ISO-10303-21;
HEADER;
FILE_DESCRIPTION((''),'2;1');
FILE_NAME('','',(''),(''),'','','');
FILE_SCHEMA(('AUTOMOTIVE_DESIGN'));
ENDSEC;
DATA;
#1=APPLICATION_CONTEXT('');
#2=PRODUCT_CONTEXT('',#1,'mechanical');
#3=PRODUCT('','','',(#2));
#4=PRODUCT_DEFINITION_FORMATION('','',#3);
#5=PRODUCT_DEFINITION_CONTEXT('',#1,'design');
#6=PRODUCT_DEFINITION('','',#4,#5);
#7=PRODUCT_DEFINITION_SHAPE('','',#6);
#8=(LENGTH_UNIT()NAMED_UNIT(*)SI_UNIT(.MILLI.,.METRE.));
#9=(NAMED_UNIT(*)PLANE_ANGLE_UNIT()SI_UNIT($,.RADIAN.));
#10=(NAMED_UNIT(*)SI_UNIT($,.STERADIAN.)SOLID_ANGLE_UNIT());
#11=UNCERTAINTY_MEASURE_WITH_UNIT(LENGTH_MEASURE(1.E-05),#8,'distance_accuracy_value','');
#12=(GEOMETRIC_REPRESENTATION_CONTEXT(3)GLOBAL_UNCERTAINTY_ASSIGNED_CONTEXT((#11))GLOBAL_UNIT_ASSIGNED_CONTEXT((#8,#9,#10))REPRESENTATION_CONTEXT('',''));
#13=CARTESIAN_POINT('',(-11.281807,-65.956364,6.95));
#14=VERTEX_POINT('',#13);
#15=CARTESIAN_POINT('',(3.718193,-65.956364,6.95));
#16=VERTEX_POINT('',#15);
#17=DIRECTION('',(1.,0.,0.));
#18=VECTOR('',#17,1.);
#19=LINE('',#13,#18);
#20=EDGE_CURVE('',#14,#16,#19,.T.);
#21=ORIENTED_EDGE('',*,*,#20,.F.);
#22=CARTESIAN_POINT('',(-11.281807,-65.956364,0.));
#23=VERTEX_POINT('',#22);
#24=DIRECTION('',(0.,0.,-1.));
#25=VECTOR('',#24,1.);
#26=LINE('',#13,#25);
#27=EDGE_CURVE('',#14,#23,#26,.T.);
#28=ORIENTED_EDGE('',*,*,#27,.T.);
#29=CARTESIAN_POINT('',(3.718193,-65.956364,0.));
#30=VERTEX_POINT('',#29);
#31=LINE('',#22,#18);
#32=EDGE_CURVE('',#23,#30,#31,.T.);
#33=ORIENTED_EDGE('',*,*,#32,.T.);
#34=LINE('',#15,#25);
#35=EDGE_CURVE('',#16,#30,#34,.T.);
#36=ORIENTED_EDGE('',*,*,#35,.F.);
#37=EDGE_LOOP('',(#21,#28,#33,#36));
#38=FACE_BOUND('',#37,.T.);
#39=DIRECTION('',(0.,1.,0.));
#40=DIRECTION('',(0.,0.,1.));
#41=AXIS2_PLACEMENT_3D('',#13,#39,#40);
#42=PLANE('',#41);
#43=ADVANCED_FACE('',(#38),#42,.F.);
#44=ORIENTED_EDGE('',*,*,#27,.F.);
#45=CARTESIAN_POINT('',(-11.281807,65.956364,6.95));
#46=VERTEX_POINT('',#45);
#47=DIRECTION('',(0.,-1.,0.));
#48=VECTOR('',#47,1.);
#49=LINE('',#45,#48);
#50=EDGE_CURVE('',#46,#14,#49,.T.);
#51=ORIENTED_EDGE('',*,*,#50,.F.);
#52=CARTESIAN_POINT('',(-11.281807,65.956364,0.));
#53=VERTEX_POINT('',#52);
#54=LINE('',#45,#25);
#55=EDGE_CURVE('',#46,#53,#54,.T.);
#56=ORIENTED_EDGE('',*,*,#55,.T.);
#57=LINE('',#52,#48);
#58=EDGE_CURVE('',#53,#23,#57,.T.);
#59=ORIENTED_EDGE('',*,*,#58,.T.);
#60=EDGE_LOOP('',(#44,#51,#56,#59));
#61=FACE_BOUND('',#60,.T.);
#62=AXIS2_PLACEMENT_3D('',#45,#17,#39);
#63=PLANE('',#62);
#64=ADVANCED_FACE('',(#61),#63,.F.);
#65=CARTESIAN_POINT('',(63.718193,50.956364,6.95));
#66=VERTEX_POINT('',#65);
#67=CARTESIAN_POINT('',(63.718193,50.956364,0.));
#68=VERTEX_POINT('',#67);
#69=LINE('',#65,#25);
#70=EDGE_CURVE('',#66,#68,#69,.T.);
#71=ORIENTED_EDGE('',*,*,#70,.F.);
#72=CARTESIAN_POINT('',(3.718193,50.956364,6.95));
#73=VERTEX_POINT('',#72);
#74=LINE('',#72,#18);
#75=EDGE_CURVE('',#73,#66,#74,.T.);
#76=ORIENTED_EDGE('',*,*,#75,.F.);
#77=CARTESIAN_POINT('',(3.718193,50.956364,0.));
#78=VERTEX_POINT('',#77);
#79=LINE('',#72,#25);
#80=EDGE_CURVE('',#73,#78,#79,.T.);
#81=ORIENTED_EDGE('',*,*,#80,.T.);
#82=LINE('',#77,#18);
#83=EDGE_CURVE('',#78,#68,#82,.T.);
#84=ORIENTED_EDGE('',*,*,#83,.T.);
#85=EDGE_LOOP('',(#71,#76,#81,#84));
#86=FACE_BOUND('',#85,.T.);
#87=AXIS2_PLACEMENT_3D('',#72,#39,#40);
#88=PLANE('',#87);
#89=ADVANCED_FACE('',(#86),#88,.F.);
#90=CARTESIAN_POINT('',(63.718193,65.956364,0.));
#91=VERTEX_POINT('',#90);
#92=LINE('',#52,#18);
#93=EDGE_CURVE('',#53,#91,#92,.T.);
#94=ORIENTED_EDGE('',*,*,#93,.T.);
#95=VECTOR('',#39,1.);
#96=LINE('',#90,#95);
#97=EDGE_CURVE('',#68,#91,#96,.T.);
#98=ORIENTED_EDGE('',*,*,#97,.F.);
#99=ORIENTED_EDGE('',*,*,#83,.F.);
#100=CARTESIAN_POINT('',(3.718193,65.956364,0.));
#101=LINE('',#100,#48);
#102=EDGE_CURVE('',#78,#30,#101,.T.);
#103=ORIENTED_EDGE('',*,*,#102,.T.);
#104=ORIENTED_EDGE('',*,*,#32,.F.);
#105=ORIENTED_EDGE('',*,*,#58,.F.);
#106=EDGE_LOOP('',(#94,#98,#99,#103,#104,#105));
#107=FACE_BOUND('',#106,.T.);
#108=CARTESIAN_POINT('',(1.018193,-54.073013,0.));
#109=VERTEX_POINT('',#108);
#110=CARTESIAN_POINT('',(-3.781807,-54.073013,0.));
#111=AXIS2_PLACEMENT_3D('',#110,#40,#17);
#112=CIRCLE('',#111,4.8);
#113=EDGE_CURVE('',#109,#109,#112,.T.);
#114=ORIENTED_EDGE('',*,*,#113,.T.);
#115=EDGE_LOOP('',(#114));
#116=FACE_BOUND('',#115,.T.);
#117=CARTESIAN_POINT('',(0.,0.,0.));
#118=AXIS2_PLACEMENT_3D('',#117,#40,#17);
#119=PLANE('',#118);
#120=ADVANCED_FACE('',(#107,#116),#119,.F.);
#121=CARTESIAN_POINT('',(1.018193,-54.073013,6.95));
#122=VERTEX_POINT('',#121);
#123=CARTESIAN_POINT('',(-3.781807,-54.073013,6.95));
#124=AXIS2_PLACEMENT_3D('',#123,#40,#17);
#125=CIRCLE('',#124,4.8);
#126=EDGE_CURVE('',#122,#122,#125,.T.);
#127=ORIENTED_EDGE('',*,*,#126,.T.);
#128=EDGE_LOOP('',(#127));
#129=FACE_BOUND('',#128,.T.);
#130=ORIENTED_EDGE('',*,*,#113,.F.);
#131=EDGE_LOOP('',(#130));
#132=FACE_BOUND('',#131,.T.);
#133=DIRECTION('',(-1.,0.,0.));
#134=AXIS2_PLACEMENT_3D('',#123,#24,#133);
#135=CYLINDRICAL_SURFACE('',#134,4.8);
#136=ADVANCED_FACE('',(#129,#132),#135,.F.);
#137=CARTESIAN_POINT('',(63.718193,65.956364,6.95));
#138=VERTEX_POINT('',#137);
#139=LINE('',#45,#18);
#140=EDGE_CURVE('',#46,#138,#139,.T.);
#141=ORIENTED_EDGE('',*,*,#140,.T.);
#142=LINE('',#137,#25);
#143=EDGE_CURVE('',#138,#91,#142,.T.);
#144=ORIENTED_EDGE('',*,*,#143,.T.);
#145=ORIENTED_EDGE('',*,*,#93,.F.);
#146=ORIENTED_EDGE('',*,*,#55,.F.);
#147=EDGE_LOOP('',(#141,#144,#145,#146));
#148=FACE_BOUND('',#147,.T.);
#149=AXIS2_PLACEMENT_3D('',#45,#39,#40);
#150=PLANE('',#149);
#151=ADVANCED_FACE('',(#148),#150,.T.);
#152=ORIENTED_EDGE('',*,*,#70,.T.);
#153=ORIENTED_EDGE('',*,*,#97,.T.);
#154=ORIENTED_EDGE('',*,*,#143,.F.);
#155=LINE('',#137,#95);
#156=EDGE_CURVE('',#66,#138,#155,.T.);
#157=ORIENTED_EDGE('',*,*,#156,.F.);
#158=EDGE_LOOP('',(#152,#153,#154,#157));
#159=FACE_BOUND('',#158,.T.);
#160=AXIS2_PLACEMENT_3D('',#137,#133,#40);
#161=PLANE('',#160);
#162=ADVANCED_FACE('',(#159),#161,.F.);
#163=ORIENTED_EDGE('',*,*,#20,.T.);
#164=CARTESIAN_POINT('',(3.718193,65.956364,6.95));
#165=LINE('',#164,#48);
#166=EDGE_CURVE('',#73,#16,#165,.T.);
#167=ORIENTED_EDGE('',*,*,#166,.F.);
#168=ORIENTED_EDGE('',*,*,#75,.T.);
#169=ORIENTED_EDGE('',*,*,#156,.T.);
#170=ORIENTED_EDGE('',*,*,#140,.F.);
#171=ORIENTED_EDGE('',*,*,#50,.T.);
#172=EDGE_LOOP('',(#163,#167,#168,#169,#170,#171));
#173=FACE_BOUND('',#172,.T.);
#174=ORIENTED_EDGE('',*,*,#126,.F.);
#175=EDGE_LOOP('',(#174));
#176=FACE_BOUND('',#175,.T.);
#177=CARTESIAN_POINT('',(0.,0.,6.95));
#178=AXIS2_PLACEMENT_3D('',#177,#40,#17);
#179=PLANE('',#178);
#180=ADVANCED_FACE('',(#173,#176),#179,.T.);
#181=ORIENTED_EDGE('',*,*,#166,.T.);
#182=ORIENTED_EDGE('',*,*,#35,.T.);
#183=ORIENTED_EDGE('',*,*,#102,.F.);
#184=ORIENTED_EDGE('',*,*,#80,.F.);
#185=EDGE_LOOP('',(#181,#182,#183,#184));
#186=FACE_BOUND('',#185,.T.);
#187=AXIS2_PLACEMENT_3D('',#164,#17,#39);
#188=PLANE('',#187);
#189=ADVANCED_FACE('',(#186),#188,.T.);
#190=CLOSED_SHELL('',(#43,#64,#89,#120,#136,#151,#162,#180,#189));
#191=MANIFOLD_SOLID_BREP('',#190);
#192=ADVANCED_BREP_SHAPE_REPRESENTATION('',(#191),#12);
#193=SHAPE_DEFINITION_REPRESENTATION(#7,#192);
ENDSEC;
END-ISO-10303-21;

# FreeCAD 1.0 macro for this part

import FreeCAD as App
import Part
import Sketcher
Q = App.Units.Quantity

doc = App.newDocument("Part")
body = doc.addObject("PartDesign::Body", "Body")

# Sketch on XY plane
sketch1 = doc.addObject("Sketcher::SketchObject", "Sketch")
body.addObject(sketch1)
sketch1.AttachmentSupport = (doc.XY_Plane, [""])
sketch1.MapMode = "FlatFace"
sketch1.addGeometry(Part.LineSegment(App.Vector(-11, 66, 0), App.Vector(-11, -66, 0)), False)
sketch1.addGeometry(Part.LineSegment(App.Vector(-11, -66, 0), App.Vector(4, -66, 0)), False)
sketch1.addGeometry(Part.LineSegment(App.Vector(4, -66, 0), App.Vector(4, 66, 0)), False)
sketch1.addGeometry(Part.LineSegment(App.Vector(4, 66, 0), App.Vector(-11, 66, 0)), False)
sketch1.addConstraint(Sketcher.Constraint("Coincident", 0, 2, 1, 1))
sketch1.addConstraint(Sketcher.Constraint("Coincident", 1, 2, 2, 1))
sketch1.addConstraint(Sketcher.Constraint("Coincident", 2, 2, 3, 1))
sketch1.addConstraint(Sketcher.Constraint("Coincident", 3, 2, 0, 1))
sketch1.addConstraint(Sketcher.Constraint("Vertical", 0))
sketch1.addConstraint(Sketcher.Constraint("Horizontal", 1))
sketch1.addConstraint(Sketcher.Constraint("Vertical", 2))
sketch1.addConstraint(Sketcher.Constraint("Horizontal", 3))
sketch1.addConstraint(Sketcher.Constraint("DistanceX", 1, 1, 1, 2, Q("15 mm")))
sketch1.addConstraint(Sketcher.Constraint("DistanceY", 0, 2, 0, 1, Q("131.912728 mm")))
sketch1.addConstraint(Sketcher.Constraint("DistanceX", 0, 2, -1, 1, Q("11.281807 mm")))
sketch1.addConstraint(Sketcher.Constraint("DistanceY", 0, 2, -1, 1, Q("65.956364 mm")))
pad1 = doc.addObject("PartDesign::Pad", "Pad")
body.addObject(pad1)
pad1.Profile = sketch1
pad1.Length = 6.95

# Sketch on XY plane
sketch2 = doc.addObject("Sketcher::SketchObject", "Sketch001")
body.addObject(sketch2)
sketch2.AttachmentSupport = (doc.XY_Plane, [""])
sketch2.MapMode = "FlatFace"
sketch2.addGeometry(Part.LineSegment(App.Vector(4, 66, 0), App.Vector(4, 51, 0)), False)
sketch2.addGeometry(Part.LineSegment(App.Vector(4, 51, 0), App.Vector(64, 51, 0)), False)
sketch2.addGeometry(Part.LineSegment(App.Vector(64, 51, 0), App.Vector(64, 66, 0)), False)
sketch2.addGeometry(Part.LineSegment(App.Vector(64, 66, 0), App.Vector(4, 66, 0)), False)
sketch2.addConstraint(Sketcher.Constraint("Coincident", 0, 2, 1, 1))
sketch2.addConstraint(Sketcher.Constraint("Coincident", 1, 2, 2, 1))
sketch2.addConstraint(Sketcher.Constraint("Coincident", 2, 2, 3, 1))
sketch2.addConstraint(Sketcher.Constraint("Coincident", 3, 2, 0, 1))
sketch2.addConstraint(Sketcher.Constraint("Vertical", 0))
sketch2.addConstraint(Sketcher.Constraint("Horizontal", 1))
sketch2.addConstraint(Sketcher.Constraint("Vertical", 2))
sketch2.addConstraint(Sketcher.Constraint("Horizontal", 3))
sketch2.addConstraint(Sketcher.Constraint("DistanceX", 1, 1, 1, 2, Q("60 mm")))
sketch2.addConstraint(Sketcher.Constraint("DistanceY", 0, 2, 0, 1, Q("15 mm")))
sketch2.addConstraint(Sketcher.Constraint("DistanceX", -1, 1, 0, 2, Q("3.718193 mm")))
sketch2.addConstraint(Sketcher.Constraint("DistanceY", -1, 1, 0, 2, Q("50.956364 mm")))
pad2 = doc.addObject("PartDesign::Pad", "Pad001")
body.addObject(pad2)
pad2.Profile = sketch2
pad2.Length = 6.95

# Sketch on XY plane
sketch3 = doc.addObject("Sketcher::SketchObject", "Sketch002")
body.addObject(sketch3)
sketch3.AttachmentSupport = (doc.XY_Plane, [""])
sketch3.MapMode = "FlatFace"
sketch3.addGeometry(Part.Circle(App.Vector(-3.8, -54.1, 0), App.Vector(0, 0, 1), 4.8), False)
sketch3.addConstraint(Sketcher.Constraint("Diameter", 0, Q("9.6 mm")))
sketch3.addConstraint(Sketcher.Constraint("DistanceX", 0, 3, -1, 1, Q("3.781807 mm")))
sketch3.addConstraint(Sketcher.Constraint("DistanceY", 0, 3, -1, 1, Q("54.073013 mm")))
pocket1 = doc.addObject("PartDesign::Pocket", "Pocket")
body.addObject(pocket1)
pocket1.Profile = sketch3
pocket1.Type = "ThroughAll"
pocket1.Reversed = True

doc.recompute()
